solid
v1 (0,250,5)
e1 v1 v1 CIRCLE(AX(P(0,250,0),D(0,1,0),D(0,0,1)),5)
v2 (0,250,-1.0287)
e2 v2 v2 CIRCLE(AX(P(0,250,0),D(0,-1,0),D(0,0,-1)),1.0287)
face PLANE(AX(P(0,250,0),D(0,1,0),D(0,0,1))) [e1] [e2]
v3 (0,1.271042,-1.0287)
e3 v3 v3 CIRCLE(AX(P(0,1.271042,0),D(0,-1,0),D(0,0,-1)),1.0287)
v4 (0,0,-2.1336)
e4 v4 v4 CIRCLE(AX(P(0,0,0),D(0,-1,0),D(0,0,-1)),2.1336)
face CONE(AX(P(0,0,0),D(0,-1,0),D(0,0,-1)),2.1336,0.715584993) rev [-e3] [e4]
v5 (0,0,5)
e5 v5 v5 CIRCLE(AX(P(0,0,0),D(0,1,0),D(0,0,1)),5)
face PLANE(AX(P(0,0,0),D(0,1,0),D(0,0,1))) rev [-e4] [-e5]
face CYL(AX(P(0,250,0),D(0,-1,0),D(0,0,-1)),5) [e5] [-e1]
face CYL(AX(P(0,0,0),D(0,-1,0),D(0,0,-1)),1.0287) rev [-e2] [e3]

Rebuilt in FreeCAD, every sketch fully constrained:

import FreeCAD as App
import Part
import Sketcher

V = App.Vector

doc = App.newDocument("Part")
body = doc.addObject("PartDesign::Body", "Body")

sketch1 = body.newObject("Sketcher::SketchObject", "Sketch")
sketch1.AttachmentSupport = (doc.getObject("XZ_Plane"), [""])
sketch1.MapMode = "FlatFace"
sketch1.addGeometry(Part.Circle(V(0, 0, 0), V(0, 0, 1), 5), False)
sketch1.addConstraint(Sketcher.Constraint("Coincident", 0, 3, -1, 1))
sketch1.addConstraint(Sketcher.Constraint("Diameter", 0, 10.0))
pad1 = body.newObject("PartDesign::Pad", "Pad")
pad1.Profile = sketch1
pad1.Length = 250
pad1.Reversed = True

sketch2 = body.newObject("Sketcher::SketchObject", "Sketch001")
sketch2.AttachmentSupport = (doc.getObject("XZ_Plane"), [""])
sketch2.MapMode = "FlatFace"
sketch2.addGeometry(Part.Circle(V(0, 0, 0), V(0, 0, 1), 1), False)
sketch2.addConstraint(Sketcher.Constraint("Coincident", 0, 3, -1, 1))
sketch2.addConstraint(Sketcher.Constraint("Diameter", 0, 2.0574))
doc.recompute()
hole = body.newObject("PartDesign::Hole", "Hole")
hole.Profile = sketch2
hole.ThreadType = "None"
hole.Diameter = 2.0574
hole.DepthType = "ThroughAll"
hole.HoleCutType = "Countersink"
hole.HoleCutDiameter = 4.2672
hole.HoleCutCountersinkAngle = 82

doc.recompute()
